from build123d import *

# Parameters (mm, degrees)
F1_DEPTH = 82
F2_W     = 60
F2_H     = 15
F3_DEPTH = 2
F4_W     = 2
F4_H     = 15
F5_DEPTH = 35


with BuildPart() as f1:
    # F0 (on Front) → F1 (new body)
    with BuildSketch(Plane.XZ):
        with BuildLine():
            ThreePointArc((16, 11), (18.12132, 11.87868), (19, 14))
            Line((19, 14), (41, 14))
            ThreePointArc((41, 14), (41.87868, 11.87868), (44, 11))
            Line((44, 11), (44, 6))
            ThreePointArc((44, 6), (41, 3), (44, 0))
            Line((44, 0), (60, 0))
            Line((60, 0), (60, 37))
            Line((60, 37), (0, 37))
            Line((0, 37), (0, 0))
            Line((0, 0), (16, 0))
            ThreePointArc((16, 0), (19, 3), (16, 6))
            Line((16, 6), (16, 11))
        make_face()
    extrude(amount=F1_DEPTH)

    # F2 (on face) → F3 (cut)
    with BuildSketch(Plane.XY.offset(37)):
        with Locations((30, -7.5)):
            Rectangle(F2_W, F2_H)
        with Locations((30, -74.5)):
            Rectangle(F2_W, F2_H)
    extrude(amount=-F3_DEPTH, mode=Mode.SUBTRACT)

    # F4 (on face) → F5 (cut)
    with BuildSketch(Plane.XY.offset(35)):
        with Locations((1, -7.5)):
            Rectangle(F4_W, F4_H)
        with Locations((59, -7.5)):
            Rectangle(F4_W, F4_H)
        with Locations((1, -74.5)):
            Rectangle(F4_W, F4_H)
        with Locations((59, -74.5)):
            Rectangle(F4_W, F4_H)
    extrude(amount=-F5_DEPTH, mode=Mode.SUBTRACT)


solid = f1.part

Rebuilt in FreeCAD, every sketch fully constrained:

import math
import FreeCAD as App
import Part
import Sketcher

V = App.Vector


def add_polygon(sketch, points):
    """Adds a closed chain of lines whose ends are joined by coincident constraints."""
    first, n = sketch.GeometryCount, len(points)
    for a, b in zip(points, points[1:] + points[:1]):
        sketch.addGeometry(Part.LineSegment(App.Vector(*a, 0), App.Vector(*b, 0)), False)
    for i in range(n):
        sketch.addConstraint(Sketcher.Constraint("Coincident", first + i, 2, first + (i + 1) % n, 1))

doc = App.newDocument("Part")
body = doc.addObject("PartDesign::Body", "Body")

# Sketch on XZ plane
sketch1 = body.newObject("Sketcher::SketchObject", "Sketch")
sketch1.AttachmentSupport = (doc.getObject("XZ_Plane"), [""])
sketch1.MapMode = "FlatFace"
sketch1.addGeometry(Part.ArcOfCircle(Part.Circle(V(16, 14, 0), V(0, 0, 1), 3), math.radians(-90), math.radians(0)), False)
sketch1.addGeometry(Part.LineSegment(V(19, 14, 0), V(41, 14, 0)), False)
sketch1.addGeometry(Part.ArcOfCircle(Part.Circle(V(44, 14, 0), V(0, 0, 1), 3), math.radians(-180), math.radians(-90)), False)
sketch1.addGeometry(Part.LineSegment(V(44, 11, 0), V(44, 6, 0)), False)
sketch1.addGeometry(Part.ArcOfCircle(Part.Circle(V(44, 3, 0), V(0, 0, 1), 3), math.radians(90), math.radians(270)), False)
sketch1.addGeometry(Part.LineSegment(V(44, 0, 0), V(60, 0, 0)), False)
sketch1.addGeometry(Part.LineSegment(V(60, 0, 0), V(60, 37, 0)), False)
sketch1.addGeometry(Part.LineSegment(V(60, 37, 0), V(0, 37, 0)), False)
sketch1.addGeometry(Part.LineSegment(V(0, 37, 0), V(0, 0, 0)), False)
sketch1.addGeometry(Part.LineSegment(V(0, 0, 0), V(16, 0, 0)), False)
sketch1.addGeometry(Part.ArcOfCircle(Part.Circle(V(16, 3, 0), V(0, 0, 1), 3), math.radians(-90), math.radians(90)), False)
sketch1.addGeometry(Part.LineSegment(V(16, 6, 0), V(16, 11, 0)), False)
sketch1.addConstraint(Sketcher.Constraint("Coincident", 0, 2, 1, 1))
sketch1.addConstraint(Sketcher.Constraint("Coincident", 1, 2, 2, 1))
sketch1.addConstraint(Sketcher.Constraint("Coincident", 2, 2, 3, 1))
sketch1.addConstraint(Sketcher.Constraint("Coincident", 3, 2, 4, 1))
sketch1.addConstraint(Sketcher.Constraint("Tangent", 4, 2, 5, 1))
sketch1.addConstraint(Sketcher.Constraint("Coincident", 5, 2, 6, 1))
sketch1.addConstraint(Sketcher.Constraint("Coincident", 6, 2, 7, 1))
sketch1.addConstraint(Sketcher.Constraint("Coincident", 7, 2, 8, 1))
sketch1.addConstraint(Sketcher.Constraint("Coincident", 8, 2, 9, 1))
sketch1.addConstraint(Sketcher.Constraint("Tangent", 9, 2, 10, 1))
sketch1.addConstraint(Sketcher.Constraint("Coincident", 10, 2, 11, 1))
sketch1.addConstraint(Sketcher.Constraint("Coincident", 11, 2, 0, 1))
sketch1.addConstraint(Sketcher.Constraint("Horizontal", 1))
sketch1.addConstraint(Sketcher.Constraint("Vertical", 3))
sketch1.addConstraint(Sketcher.Constraint("Horizontal", 5))
sketch1.addConstraint(Sketcher.Constraint("Vertical", 6))
sketch1.addConstraint(Sketcher.Constraint("Horizontal", 7))
sketch1.addConstraint(Sketcher.Constraint("Vertical", 8))
sketch1.addConstraint(Sketcher.Constraint("Horizontal", 9))
sketch1.addConstraint(Sketcher.Constraint("Vertical", 11))
sketch1.addConstraint(Sketcher.Constraint("Coincident", 8, 2, -1, 1))
sketch1.addConstraint(Sketcher.Constraint("Equal", 0, 2))
sketch1.addConstraint(Sketcher.Constraint("Equal", 2, 4))
sketch1.addConstraint(Sketcher.Constraint("Equal", 4, 10))
sketch1.addConstraint(Sketcher.Constraint("PointOnObject", 4, 2, -1))
sketch1.addConstraint(Sketcher.Constraint("Horizontal", 0, 3, 2, 3))
sketch1.addConstraint(Sketcher.Constraint("Horizontal", 2, 3, 0, 2))
sketch1.addConstraint(Sketcher.Constraint("Vertical", 2, 3, 4, 3))
sketch1.addConstraint(Sketcher.Constraint("Vertical", 0, 3, 10, 3))
sketch1.addConstraint(Sketcher.Constraint("Vertical", 4, 3, 2, 2))
sketch1.addConstraint(Sketcher.Constraint("Vertical", 9, 2, 10, 2))
sketch1.addConstraint(Sketcher.Constraint("Equal", 5, 9))
sketch1.addConstraint(Sketcher.Constraint("Radius", 0, 3.000001))
sketch1.addConstraint(Sketcher.Constraint("DistanceX", 1, 1, 1, 2, 22.0))
sketch1.addConstraint(Sketcher.Constraint("DistanceX", 5, 1, 5, 2, 16.0))
sketch1.addConstraint(Sketcher.Constraint("DistanceY", 3, 2, 3, 1, 5.0))
sketch1.addConstraint(Sketcher.Constraint("DistanceY", 6, 1, 6, 2, 37.0))
pad1 = body.newObject("PartDesign::Pad", "Pad")
pad1.Profile = sketch1
pad1.Length = 82

# Sketch on XY plane
sketch2 = body.newObject("Sketcher::SketchObject", "Sketch001")
sketch2.AttachmentSupport = (doc.getObject("XY_Plane"), [""])
sketch2.MapMode = "FlatFace"
sketch2.AttachmentOffset = App.Placement(V(0, 0, 37), App.Rotation())
add_polygon(sketch2, [(0, 0), (0, -15), (60, -15), (60, 0)])  # lines 0-3
add_polygon(sketch2, [(0, -67), (0, -82), (60, -82), (60, -67)])  # lines 4-7
sketch2.addConstraint(Sketcher.Constraint("Vertical", 0))
sketch2.addConstraint(Sketcher.Constraint("Horizontal", 1))
sketch2.addConstraint(Sketcher.Constraint("Vertical", 2))
sketch2.addConstraint(Sketcher.Constraint("Horizontal", 3))
sketch2.addConstraint(Sketcher.Constraint("Vertical", 4))
sketch2.addConstraint(Sketcher.Constraint("Horizontal", 5))
sketch2.addConstraint(Sketcher.Constraint("Vertical", 6))
sketch2.addConstraint(Sketcher.Constraint("Horizontal", 7))
sketch2.addConstraint(Sketcher.Constraint("Coincident", 3, 2, -1, 1))
sketch2.addConstraint(Sketcher.Constraint("PointOnObject", 4, 2, -2))
sketch2.addConstraint(Sketcher.Constraint("Vertical", 2, 2, 5, 2))
sketch2.addConstraint(Sketcher.Constraint("Equal", 2, 4))
sketch2.addConstraint(Sketcher.Constraint("DistanceX", 1, 1, 1, 2, 60.0))
sketch2.addConstraint(Sketcher.Constraint("DistanceY", 0, 2, 0, 1, 15.0))
sketch2.addConstraint(Sketcher.Constraint("DistanceY", 4, 2, -1, 1, 82.0))
pocket1 = body.newObject("PartDesign::Pocket", "Pocket")
pocket1.Profile = sketch2
pocket1.Length = 2

# Sketch on XY plane
sketch3 = body.newObject("Sketcher::SketchObject", "Sketch002")
sketch3.AttachmentSupport = (doc.getObject("XY_Plane"), [""])
sketch3.MapMode = "FlatFace"
sketch3.AttachmentOffset = App.Placement(V(0, 0, 35), App.Rotation())
add_polygon(sketch3, [(0, 0), (0, -15), (2, -15), (2, 0)])  # lines 0-3
add_polygon(sketch3, [(58, 0), (58, -15), (60, -15), (60, 0)])  # lines 4-7
add_polygon(sketch3, [(0, -67), (0, -82), (2, -82), (2, -67)])  # lines 8-11
add_polygon(sketch3, [(58, -67), (58, -82), (60, -82), (60, -67)])  # lines 12-15
sketch3.addConstraint(Sketcher.Constraint("Vertical", 0))
sketch3.addConstraint(Sketcher.Constraint("Horizontal", 1))
sketch3.addConstraint(Sketcher.Constraint("Vertical", 2))
sketch3.addConstraint(Sketcher.Constraint("Horizontal", 3))
sketch3.addConstraint(Sketcher.Constraint("Vertical", 4))
sketch3.addConstraint(Sketcher.Constraint("Horizontal", 5))
sketch3.addConstraint(Sketcher.Constraint("Vertical", 6))
sketch3.addConstraint(Sketcher.Constraint("Horizontal", 7))
sketch3.addConstraint(Sketcher.Constraint("Vertical", 8))
sketch3.addConstraint(Sketcher.Constraint("Horizontal", 9))
sketch3.addConstraint(Sketcher.Constraint("Vertical", 10))
sketch3.addConstraint(Sketcher.Constraint("Horizontal", 11))
sketch3.addConstraint(Sketcher.Constraint("Vertical", 12))
sketch3.addConstraint(Sketcher.Constraint("Horizontal", 13))
sketch3.addConstraint(Sketcher.Constraint("Vertical", 14))
sketch3.addConstraint(Sketcher.Constraint("Horizontal", 15))
sketch3.addConstraint(Sketcher.Constraint("Coincident", 3, 2, -1, 1))
sketch3.addConstraint(Sketcher.Constraint("PointOnObject", 6, 2, -1))
sketch3.addConstraint(Sketcher.Constraint("PointOnObject", 8, 2, -2))
sketch3.addConstraint(Sketcher.Constraint("Horizontal", 1, 2, 4, 2))
sketch3.addConstraint(Sketcher.Constraint("Horizontal", 9, 2, 12, 2))
sketch3.addConstraint(Sketcher.Constraint("Horizontal", 11, 2, 14, 2))
sketch3.addConstraint(Sketcher.Constraint("Vertical", 2, 2, 9, 2))
sketch3.addConstraint(Sketcher.Constraint("Vertical", 7, 2, 12, 2))
sketch3.addConstraint(Sketcher.Constraint("Vertical", 6, 2, 13, 2))
sketch3.addConstraint(Sketcher.Constraint("Equal", 3, 5))
sketch3.addConstraint(Sketcher.Constraint("Equal", 6, 8))
sketch3.addConstraint(Sketcher.Constraint("DistanceX", 1, 1, 1, 2, 2.0))
sketch3.addConstraint(Sketcher.Constraint("DistanceY", 0, 2, 0, 1, 15.0))
sketch3.addConstraint(Sketcher.Constraint("DistanceX", -1, 1, 4, 2, 58.0))
sketch3.addConstraint(Sketcher.Constraint("DistanceY", 8, 2, -1, 1, 82.0))
pocket2 = body.newObject("PartDesign::Pocket", "Pocket001")
pocket2.Profile = sketch3
pocket2.Length = 35

doc.recompute()
